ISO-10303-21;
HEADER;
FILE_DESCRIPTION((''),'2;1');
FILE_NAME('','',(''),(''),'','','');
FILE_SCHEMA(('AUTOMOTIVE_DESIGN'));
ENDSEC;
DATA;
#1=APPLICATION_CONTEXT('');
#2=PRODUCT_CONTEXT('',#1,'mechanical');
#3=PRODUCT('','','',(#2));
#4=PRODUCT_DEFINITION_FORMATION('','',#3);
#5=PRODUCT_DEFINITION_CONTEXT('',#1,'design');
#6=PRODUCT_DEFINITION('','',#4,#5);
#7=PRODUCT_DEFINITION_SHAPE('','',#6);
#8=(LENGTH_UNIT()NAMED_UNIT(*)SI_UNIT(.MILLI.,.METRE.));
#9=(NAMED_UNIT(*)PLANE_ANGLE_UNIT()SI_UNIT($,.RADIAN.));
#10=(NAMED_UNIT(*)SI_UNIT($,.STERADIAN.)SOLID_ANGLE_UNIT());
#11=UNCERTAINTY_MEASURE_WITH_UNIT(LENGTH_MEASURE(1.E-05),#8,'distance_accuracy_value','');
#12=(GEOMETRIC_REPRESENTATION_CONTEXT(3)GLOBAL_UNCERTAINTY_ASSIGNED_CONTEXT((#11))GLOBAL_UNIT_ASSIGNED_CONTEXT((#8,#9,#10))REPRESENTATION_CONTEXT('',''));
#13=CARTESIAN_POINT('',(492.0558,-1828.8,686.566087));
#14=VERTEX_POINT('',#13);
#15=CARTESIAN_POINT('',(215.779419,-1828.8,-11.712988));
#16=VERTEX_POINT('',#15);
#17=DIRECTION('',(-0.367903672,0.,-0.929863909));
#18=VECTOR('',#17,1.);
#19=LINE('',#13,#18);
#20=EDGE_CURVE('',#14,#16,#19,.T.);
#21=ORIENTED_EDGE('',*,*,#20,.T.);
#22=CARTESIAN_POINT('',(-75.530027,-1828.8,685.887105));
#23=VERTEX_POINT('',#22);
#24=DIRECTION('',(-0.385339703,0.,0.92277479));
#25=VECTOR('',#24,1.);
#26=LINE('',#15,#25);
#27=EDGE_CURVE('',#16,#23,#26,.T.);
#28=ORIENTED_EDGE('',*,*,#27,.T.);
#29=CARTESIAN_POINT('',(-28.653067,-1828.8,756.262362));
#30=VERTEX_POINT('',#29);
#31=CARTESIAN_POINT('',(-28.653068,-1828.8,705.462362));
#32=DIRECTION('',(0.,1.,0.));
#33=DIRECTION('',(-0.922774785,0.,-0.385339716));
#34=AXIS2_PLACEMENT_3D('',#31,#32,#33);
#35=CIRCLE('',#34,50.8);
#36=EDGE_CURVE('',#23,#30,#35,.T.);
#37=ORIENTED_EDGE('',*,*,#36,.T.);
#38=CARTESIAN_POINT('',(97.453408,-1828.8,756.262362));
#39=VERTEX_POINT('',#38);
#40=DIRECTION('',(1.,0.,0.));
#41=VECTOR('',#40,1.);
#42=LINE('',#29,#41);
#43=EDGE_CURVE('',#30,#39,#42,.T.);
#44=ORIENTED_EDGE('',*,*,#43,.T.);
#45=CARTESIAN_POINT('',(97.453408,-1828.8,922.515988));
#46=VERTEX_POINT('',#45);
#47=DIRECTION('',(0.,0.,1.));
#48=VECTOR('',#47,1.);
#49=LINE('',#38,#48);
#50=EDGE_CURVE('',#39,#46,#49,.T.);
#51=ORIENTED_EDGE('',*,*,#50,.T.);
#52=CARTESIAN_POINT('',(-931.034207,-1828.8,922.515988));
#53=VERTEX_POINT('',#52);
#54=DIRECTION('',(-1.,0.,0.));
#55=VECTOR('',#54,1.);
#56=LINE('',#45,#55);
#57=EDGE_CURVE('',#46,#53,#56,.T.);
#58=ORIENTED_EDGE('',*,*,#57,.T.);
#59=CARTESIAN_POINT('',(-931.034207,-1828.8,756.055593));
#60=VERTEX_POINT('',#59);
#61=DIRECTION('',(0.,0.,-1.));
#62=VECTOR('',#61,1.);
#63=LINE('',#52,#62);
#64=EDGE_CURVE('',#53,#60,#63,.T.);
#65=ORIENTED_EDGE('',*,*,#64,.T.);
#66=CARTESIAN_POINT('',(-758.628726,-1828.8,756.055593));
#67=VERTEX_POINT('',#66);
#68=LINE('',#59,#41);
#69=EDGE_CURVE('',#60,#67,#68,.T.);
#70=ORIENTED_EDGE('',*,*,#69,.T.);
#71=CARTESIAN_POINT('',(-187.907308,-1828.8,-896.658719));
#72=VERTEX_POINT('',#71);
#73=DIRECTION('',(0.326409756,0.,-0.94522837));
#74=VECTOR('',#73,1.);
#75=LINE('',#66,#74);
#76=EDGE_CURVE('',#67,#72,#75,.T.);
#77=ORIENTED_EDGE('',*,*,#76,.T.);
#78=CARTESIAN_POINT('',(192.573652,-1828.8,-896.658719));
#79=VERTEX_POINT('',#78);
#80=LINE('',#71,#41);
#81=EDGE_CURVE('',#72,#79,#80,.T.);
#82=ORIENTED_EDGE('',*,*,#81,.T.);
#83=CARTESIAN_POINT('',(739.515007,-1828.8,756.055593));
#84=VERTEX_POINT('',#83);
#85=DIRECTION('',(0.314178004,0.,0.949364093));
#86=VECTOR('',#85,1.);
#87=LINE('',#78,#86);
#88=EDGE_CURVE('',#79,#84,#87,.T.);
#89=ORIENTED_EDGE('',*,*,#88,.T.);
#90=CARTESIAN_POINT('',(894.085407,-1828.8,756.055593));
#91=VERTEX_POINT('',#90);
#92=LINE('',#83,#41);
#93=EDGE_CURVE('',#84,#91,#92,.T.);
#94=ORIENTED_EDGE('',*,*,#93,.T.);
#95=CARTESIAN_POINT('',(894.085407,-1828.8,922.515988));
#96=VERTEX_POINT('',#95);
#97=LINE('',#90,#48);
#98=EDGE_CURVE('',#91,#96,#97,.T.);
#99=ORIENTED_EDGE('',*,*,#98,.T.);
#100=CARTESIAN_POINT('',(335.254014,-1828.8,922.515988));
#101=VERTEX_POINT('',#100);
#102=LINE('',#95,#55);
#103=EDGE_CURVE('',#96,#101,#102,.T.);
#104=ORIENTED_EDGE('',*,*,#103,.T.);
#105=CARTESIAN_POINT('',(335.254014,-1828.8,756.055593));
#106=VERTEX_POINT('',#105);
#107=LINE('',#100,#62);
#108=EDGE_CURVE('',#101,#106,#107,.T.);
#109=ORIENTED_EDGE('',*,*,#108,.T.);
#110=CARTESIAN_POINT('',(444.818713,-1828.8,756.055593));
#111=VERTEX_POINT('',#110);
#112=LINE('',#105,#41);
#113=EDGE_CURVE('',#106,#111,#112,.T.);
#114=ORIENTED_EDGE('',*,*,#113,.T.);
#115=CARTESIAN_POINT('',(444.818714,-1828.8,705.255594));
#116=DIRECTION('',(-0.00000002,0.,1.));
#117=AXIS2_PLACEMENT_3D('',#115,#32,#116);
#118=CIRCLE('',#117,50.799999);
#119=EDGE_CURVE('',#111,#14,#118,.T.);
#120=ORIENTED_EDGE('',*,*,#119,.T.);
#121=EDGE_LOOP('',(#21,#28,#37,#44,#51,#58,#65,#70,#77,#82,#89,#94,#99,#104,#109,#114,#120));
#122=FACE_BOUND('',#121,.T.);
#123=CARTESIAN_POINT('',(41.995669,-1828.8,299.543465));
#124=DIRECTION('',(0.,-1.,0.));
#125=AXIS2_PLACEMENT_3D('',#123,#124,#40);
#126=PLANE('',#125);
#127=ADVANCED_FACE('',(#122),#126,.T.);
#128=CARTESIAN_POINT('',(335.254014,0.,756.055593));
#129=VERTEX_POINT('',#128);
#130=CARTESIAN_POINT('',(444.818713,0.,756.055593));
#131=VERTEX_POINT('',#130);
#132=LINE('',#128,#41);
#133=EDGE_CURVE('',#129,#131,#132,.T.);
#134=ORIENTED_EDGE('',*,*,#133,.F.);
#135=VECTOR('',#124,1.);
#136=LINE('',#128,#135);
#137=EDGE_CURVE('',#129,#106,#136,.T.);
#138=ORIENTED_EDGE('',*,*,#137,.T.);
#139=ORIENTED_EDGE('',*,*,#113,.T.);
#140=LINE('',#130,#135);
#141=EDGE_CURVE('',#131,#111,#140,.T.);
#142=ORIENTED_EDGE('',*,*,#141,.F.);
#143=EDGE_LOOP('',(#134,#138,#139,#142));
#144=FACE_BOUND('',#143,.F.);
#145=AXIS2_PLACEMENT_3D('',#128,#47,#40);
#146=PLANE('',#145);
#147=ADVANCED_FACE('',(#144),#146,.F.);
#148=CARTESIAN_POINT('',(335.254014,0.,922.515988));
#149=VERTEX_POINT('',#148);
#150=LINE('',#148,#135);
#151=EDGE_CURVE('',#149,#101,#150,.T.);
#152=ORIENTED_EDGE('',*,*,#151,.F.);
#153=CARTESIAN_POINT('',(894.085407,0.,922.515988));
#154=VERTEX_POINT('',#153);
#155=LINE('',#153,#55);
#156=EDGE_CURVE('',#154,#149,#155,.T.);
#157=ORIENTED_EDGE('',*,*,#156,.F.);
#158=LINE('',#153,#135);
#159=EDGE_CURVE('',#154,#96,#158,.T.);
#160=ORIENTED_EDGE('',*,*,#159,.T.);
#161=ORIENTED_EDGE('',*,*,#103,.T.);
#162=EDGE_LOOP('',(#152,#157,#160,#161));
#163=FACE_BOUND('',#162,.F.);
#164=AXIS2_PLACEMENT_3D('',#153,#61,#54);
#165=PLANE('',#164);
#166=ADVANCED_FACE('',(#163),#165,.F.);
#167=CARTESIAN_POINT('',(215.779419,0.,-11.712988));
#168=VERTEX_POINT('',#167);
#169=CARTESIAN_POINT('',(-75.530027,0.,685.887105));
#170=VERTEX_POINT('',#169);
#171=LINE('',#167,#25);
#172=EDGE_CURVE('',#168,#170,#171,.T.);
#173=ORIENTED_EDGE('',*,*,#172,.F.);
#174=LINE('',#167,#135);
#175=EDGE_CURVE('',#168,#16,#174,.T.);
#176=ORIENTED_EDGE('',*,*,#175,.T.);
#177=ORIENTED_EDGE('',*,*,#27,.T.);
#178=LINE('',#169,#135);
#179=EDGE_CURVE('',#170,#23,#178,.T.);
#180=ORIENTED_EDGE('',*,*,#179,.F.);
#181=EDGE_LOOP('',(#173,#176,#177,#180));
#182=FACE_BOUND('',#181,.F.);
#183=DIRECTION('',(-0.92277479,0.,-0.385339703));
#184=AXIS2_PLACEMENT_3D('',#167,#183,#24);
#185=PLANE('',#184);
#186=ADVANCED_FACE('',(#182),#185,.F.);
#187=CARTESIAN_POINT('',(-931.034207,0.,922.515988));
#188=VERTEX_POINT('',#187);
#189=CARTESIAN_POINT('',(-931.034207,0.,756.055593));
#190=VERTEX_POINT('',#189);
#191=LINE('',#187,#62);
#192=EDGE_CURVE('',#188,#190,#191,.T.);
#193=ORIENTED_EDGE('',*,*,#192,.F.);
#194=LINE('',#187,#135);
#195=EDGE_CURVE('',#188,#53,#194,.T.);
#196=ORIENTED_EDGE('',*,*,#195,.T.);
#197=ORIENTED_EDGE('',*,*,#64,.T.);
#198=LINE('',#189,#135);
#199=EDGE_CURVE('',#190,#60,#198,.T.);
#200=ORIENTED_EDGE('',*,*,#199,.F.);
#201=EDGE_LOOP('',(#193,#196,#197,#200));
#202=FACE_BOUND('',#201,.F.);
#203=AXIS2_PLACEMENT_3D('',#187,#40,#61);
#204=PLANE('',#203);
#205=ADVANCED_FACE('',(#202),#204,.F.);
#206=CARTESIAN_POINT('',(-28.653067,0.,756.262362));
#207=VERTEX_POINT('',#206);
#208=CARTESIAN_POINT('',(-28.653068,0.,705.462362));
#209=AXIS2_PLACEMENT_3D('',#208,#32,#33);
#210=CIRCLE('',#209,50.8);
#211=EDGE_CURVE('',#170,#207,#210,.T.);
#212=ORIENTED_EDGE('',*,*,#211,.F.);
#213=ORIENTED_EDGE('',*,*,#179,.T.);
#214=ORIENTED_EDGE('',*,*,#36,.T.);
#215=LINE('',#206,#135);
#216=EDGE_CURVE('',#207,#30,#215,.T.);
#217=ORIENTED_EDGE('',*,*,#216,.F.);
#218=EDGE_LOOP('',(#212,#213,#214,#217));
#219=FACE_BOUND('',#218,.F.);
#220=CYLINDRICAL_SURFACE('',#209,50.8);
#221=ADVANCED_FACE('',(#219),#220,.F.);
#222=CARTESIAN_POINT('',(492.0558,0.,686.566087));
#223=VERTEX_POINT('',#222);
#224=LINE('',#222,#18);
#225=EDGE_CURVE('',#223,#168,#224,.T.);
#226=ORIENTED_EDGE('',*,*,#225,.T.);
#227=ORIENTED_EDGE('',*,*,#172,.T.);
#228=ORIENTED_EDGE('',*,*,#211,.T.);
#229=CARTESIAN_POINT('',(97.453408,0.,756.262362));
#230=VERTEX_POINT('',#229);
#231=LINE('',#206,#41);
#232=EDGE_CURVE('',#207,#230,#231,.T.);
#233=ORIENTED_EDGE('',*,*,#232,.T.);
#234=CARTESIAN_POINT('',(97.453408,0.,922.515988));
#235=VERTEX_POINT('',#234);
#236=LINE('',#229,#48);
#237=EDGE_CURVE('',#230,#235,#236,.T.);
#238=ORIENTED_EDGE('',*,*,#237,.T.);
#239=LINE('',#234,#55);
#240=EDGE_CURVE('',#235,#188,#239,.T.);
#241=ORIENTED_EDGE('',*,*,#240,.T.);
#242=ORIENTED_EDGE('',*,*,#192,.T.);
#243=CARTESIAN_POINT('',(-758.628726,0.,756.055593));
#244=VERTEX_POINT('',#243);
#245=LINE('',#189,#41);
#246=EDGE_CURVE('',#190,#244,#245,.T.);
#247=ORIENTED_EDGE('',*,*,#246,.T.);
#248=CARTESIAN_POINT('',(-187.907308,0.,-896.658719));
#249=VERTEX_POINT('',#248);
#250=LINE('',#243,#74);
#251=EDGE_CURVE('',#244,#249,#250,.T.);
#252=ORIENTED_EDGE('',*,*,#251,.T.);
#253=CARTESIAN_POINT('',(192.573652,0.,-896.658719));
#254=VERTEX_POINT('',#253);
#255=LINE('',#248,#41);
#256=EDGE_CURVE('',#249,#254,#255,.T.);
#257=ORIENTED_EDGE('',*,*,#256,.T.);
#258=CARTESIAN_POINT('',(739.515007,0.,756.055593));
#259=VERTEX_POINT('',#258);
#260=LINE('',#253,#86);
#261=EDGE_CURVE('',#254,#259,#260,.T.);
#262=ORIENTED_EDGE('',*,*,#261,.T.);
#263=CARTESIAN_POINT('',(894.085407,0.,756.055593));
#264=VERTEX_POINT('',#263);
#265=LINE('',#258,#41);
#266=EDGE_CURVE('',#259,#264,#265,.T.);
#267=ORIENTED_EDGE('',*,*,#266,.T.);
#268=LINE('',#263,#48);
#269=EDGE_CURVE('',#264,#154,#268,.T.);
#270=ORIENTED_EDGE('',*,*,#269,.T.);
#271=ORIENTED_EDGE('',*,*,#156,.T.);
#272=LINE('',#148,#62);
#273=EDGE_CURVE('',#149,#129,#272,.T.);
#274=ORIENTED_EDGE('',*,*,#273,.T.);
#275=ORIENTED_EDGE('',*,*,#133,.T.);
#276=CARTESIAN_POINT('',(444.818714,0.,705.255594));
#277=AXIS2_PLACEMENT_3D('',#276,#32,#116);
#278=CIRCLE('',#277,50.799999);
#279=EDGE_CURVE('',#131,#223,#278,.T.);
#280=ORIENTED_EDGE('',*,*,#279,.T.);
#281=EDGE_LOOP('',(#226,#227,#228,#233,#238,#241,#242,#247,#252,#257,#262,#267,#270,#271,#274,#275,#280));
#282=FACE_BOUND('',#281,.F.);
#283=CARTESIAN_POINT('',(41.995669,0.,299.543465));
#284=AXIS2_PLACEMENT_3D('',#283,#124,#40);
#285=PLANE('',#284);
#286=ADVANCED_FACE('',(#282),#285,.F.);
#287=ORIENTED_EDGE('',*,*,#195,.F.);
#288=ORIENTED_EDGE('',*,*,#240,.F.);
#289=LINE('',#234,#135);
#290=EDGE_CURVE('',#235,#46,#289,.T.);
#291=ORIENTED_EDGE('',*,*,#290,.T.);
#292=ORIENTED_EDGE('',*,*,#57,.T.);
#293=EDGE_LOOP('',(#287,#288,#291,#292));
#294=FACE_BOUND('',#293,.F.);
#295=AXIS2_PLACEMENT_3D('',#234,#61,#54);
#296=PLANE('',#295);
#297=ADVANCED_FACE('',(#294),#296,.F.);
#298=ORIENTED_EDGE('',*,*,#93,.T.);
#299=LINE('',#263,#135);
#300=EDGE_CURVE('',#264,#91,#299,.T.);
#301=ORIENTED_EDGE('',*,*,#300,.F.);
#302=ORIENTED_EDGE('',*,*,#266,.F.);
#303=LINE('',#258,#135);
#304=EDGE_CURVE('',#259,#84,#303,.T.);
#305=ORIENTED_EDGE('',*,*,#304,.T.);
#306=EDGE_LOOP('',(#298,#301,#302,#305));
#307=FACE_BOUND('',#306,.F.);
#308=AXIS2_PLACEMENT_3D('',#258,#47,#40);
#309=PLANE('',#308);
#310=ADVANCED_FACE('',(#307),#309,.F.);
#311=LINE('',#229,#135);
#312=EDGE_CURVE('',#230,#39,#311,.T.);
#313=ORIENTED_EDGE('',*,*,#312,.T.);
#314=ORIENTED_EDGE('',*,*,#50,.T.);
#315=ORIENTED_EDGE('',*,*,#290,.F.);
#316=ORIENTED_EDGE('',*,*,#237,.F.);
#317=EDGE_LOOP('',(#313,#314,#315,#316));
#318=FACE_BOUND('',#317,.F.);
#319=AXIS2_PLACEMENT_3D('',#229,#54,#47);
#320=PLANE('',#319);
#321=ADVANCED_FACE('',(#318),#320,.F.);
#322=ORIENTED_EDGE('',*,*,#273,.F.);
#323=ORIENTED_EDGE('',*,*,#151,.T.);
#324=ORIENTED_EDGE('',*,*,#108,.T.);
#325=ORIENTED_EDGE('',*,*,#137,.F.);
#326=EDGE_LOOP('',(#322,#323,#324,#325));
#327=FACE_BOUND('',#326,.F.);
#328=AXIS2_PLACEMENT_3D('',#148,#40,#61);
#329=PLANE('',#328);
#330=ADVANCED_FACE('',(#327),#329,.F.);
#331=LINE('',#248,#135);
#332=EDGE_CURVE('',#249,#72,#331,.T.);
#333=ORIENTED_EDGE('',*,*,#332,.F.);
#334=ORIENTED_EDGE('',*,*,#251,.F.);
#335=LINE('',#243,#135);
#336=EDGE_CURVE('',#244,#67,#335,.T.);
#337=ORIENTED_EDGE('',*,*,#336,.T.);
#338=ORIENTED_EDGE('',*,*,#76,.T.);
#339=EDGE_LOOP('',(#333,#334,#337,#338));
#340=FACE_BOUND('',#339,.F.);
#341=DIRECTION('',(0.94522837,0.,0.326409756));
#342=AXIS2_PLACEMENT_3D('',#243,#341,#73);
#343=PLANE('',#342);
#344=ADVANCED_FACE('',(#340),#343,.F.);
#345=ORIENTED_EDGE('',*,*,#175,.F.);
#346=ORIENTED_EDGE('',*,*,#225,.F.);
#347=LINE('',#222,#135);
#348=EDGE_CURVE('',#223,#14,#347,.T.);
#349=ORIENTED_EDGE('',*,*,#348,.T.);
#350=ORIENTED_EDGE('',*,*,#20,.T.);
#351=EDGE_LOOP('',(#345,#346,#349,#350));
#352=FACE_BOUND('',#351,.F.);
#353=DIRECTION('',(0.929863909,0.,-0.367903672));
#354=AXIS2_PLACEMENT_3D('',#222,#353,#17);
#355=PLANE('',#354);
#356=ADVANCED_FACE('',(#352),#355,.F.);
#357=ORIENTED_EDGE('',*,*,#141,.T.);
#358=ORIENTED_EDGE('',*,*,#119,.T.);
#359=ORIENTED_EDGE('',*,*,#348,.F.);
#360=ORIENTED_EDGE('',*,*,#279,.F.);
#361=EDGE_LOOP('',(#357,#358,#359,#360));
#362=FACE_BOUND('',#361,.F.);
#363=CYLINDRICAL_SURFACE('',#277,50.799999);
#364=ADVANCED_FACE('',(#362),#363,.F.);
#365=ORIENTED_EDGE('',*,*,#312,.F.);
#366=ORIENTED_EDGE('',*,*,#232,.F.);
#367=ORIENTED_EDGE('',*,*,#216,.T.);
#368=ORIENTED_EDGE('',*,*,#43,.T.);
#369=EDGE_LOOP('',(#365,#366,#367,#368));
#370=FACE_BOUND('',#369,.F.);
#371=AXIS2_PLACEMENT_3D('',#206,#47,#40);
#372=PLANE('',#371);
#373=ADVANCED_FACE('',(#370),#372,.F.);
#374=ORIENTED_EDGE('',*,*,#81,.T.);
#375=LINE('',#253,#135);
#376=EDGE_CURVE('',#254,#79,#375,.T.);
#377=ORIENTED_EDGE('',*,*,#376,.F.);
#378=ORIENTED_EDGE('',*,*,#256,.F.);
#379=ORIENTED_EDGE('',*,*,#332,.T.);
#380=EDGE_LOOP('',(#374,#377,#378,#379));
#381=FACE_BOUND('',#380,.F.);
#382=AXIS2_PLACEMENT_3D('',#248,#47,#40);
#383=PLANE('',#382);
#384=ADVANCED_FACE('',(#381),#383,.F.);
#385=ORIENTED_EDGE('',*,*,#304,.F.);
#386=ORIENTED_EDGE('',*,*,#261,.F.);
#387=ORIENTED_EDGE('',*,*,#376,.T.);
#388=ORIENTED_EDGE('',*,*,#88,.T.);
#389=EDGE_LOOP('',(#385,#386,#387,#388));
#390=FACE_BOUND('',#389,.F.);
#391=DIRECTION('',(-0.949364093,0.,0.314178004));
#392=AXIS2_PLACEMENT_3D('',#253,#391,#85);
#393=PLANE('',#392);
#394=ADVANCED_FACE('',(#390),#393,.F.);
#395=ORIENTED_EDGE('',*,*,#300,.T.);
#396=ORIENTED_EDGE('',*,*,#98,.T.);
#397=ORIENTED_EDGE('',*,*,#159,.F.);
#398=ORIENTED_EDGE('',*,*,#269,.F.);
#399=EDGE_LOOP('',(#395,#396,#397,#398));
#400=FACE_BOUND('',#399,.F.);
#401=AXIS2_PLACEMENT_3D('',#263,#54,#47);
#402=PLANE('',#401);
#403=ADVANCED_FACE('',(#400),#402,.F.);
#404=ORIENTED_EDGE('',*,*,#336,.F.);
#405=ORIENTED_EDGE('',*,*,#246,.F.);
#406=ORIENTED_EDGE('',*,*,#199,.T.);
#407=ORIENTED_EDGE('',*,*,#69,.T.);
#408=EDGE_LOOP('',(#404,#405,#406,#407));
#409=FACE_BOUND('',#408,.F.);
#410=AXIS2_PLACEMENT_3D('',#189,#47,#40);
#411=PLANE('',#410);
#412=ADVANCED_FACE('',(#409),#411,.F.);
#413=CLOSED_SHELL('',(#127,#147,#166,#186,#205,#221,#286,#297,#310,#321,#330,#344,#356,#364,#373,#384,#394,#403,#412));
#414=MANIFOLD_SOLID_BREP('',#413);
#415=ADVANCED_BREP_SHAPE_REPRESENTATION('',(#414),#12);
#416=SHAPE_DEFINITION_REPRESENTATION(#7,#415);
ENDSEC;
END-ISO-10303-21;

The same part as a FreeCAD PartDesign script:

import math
import FreeCAD as App
import Part
import Sketcher
Q = App.Units.Quantity

doc = App.newDocument("Part")
body = doc.addObject("PartDesign::Body", "Body")

# Sketch on XZ plane
sketch1 = doc.addObject("Sketcher::SketchObject", "Sketch")
body.addObject(sketch1)
sketch1.AttachmentSupport = (doc.XZ_Plane, [""])
sketch1.MapMode = "FlatFace"
sketch1.addGeometry([
    Part.LineSegment(App.Vector(-931.034207, 922.515988, 0), App.Vector(-931.034207, 756.055593, 0)),  # 0
    Part.LineSegment(App.Vector(-931.034207, 756.055593, 0), App.Vector(-758.628726, 756.055593, 0)),  # 1
    Part.LineSegment(App.Vector(-758.628726, 756.055593, 0), App.Vector(-187.907308, -896.658719, 0)),  # 2
    Part.LineSegment(App.Vector(-187.907308, -896.658719, 0), App.Vector(192.573652, -896.658719, 0)),  # 3
    Part.LineSegment(App.Vector(192.573652, -896.658719, 0), App.Vector(739.515007, 756.055593, 0)),  # 4
    Part.LineSegment(App.Vector(739.515007, 756.055593, 0), App.Vector(894.085407, 756.055593, 0)),  # 5
    Part.LineSegment(App.Vector(894.085407, 756.055593, 0), App.Vector(894.085407, 922.515988, 0)),  # 6
    Part.LineSegment(App.Vector(894.085407, 922.515988, 0), App.Vector(335.254014, 922.515988, 0)),  # 7
    Part.LineSegment(App.Vector(335.254014, 922.515988, 0), App.Vector(335.254014, 756.055593, 0)),  # 8
    Part.LineSegment(App.Vector(335.254014, 756.055593, 0), App.Vector(444.818713, 756.055593, 0)),  # 9
    Part.ArcOfCircle(Part.Circle(App.Vector(444.818714, 705.255594, 0), App.Vector(0, 0, 1), 50.799999), math.radians(-21.586389), math.radians(90.000001)),  # 10
    Part.LineSegment(App.Vector(492.0558, 686.566087, 0), App.Vector(215.779419, -11.712988, 0)),  # 11
    Part.LineSegment(App.Vector(215.779419, -11.712988, 0), App.Vector(-75.530027, 685.887105, 0)),  # 12
    Part.ArcOfCircle(Part.Circle(App.Vector(-28.653068, 705.462362, 0), App.Vector(0, 0, 1), 50.8), math.radians(89.999999), math.radians(202.664832)),  # 13
    Part.LineSegment(App.Vector(-28.653067, 756.262362, 0), App.Vector(97.453408, 756.262362, 0)),  # 14
    Part.LineSegment(App.Vector(97.453408, 756.262362, 0), App.Vector(97.453408, 922.515988, 0)),  # 15
    Part.LineSegment(App.Vector(97.453408, 922.515988, 0), App.Vector(-931.034207, 922.515988, 0)),  # 16
], False)
sketch1.addConstraint([
    Sketcher.Constraint("Coincident", 0, 2, 1, 1),
    Sketcher.Constraint("Coincident", 1, 2, 2, 1),
    Sketcher.Constraint("Coincident", 2, 2, 3, 1),
    Sketcher.Constraint("Coincident", 3, 2, 4, 1),
    Sketcher.Constraint("Coincident", 4, 2, 5, 1),
    Sketcher.Constraint("Coincident", 5, 2, 6, 1),
    Sketcher.Constraint("Coincident", 6, 2, 7, 1),
    Sketcher.Constraint("Coincident", 7, 2, 8, 1),
    Sketcher.Constraint("Coincident", 8, 2, 9, 1),
    Sketcher.Constraint("Coincident", 9, 2, 10, 2),
    Sketcher.Constraint("Coincident", 10, 1, 11, 1),
    Sketcher.Constraint("Coincident", 11, 2, 12, 1),
    Sketcher.Constraint("Coincident", 12, 2, 13, 2),
    Sketcher.Constraint("Coincident", 13, 1, 14, 1),
    Sketcher.Constraint("Coincident", 14, 2, 15, 1),
    Sketcher.Constraint("Coincident", 15, 2, 16, 1),
    Sketcher.Constraint("Coincident", 16, 2, 0, 1),
    Sketcher.Constraint("Vertical", 0),
    Sketcher.Constraint("Horizontal", 1),
    Sketcher.Constraint("Horizontal", 3),
    Sketcher.Constraint("Horizontal", 5),
    Sketcher.Constraint("Vertical", 6),
    Sketcher.Constraint("Horizontal", 7),
    Sketcher.Constraint("Vertical", 8),
    Sketcher.Constraint("Horizontal", 9),
    Sketcher.Constraint("Horizontal", 14),
    Sketcher.Constraint("Vertical", 15),
    Sketcher.Constraint("Horizontal", 16),
    Sketcher.Constraint("Radius", 10, Q("2 in")),
    Sketcher.Constraint("Radius", 13, Q("2 in")),
    Sketcher.Constraint("DistanceY", 10, 3, 0, 2, Q("2 in")),
    Sketcher.Constraint("DistanceY", 10, 3, 4, 2, Q("2 in")),
    Sketcher.Constraint("DistanceX", 5, 1, 5, 2, 154.5704),
    Sketcher.Constraint("DistanceX", 9, 1, 9, 2, 109.564699),
    Sketcher.Constraint("DistanceX", 12, 2, 8, 2, Q("16.1726 in")),
    Sketcher.Constraint("DistanceX", 1, 1, 1, 2, 172.405481),
    Sketcher.Constraint("DistanceX", 3, 1, 3, 2, 380.48096),
    Sketcher.Constraint("DistanceX", -1, 1, 10, 1, 492.0558),
    Sketcher.Constraint("DistanceX", 0, 2, 2, 2, 743.126899),
    Sketcher.Constraint("DistanceX", 7, 2, 10, 3, 109.5647),
    Sketcher.Constraint("DistanceY", 10, 1, 7, 2, 235.949901),
    Sketcher.Constraint("DistanceX", 7, 2, 7, 1, 558.831393),
    Sketcher.Constraint("DistanceX", 14, 1, 14, 2, 126.106475),
    Sketcher.Constraint("DistanceX", 16, 2, 16, 1, 1028.487615),
    Sketcher.Constraint("DistanceY", 0, 2, 0, 1, 166.460395),
    Sketcher.Constraint("DistanceY", 6, 1, 6, 2, 166.460395),
    Sketcher.Constraint("DistanceY", 15, 1, 15, 2, 166.253626),
    Sketcher.Constraint("DistanceX", 13, 3, -1, 1, 28.653068),
    Sketcher.Constraint("DistanceX", 2, 2, -1, 1, 187.907308),
    Sketcher.Constraint("DistanceY", 2, 2, -1, 1, 896.658719),
    Sketcher.Constraint("DistanceY", -1, 1, 6, 2, 922.515988),
    Sketcher.Constraint("DistanceX", -1, 1, 11, 2, 215.779419),
    Sketcher.Constraint("DistanceY", 11, 2, 10, 3, 716.968582),
])
pad1 = doc.addObject("PartDesign::Pad", "Pad")
body.addObject(pad1)
pad1.Profile = sketch1
pad1.Length = Q("72 in")

doc.recompute()
